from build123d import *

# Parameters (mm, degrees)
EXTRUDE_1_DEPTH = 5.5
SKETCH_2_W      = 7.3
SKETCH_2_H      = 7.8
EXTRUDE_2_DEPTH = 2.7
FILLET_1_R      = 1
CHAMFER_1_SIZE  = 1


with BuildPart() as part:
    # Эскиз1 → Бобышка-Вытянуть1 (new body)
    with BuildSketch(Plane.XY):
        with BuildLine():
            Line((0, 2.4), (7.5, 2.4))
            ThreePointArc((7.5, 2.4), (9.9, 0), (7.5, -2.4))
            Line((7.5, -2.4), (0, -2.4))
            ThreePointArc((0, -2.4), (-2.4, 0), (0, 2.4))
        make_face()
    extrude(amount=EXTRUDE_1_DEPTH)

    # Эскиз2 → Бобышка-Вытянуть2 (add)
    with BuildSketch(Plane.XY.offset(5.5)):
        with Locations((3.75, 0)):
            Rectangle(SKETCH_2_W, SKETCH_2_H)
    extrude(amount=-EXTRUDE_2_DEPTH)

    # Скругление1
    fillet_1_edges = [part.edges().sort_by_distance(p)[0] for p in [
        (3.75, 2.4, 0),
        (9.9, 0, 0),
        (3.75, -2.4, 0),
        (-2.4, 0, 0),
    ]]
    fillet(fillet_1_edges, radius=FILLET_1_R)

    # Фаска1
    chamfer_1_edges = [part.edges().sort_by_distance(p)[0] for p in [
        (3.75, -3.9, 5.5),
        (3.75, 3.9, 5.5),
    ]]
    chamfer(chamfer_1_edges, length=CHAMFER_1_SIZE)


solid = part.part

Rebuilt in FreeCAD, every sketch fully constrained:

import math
import FreeCAD as App
import Part
import Sketcher

V = App.Vector


def edges_at(feature, points):
    """Names of the edges that pass closest to the given points."""
    edges = feature.Shape.Edges
    near = lambda p: min(range(len(edges)), key=lambda i: edges[i].distToShape(Part.Vertex(*p))[0])
    return sorted({f"Edge{near(p) + 1}" for p in points})


def add_polygon(sketch, points):
    """Adds a closed chain of lines whose ends are joined by coincident constraints."""
    first, n = sketch.GeometryCount, len(points)
    for a, b in zip(points, points[1:] + points[:1]):
        sketch.addGeometry(Part.LineSegment(App.Vector(*a, 0), App.Vector(*b, 0)), False)
    for i in range(n):
        sketch.addConstraint(Sketcher.Constraint("Coincident", first + i, 2, first + (i + 1) % n, 1))

doc = App.newDocument("Part")
params = doc.addObject("Spreadsheet::Sheet", "Params")
for row, (alias, value) in enumerate([
    ("sketch1_radius", "2.4 mm"),
    ("sketch1_width", "7.5 mm"),
    ("pad1_length", "5.5 mm"),
    ("sketch2_width", "7.3 mm"),
    ("sketch2_height", "7.8 mm"),
    ("pad2_length", "2.7 mm"),
    ("fillet_radius", "1 mm"),
    ("chamfer_size", "1 mm"),
], start=1):
    params.set(f"A{row}", alias)
    params.set(f"B{row}", "=" + value)
    params.setAlias(f"B{row}", alias)

body = doc.addObject("PartDesign::Body", "Body")

# Sketch on XY plane
sketch1 = body.newObject("Sketcher::SketchObject", "Sketch")
sketch1.AttachmentSupport = (doc.getObject("XY_Plane"), [""])
sketch1.MapMode = "FlatFace"
sketch1.addGeometry([
    Part.LineSegment(V(7.5, 2.4, 0), V(0, 2.4, 0)),
    Part.ArcOfCircle(Part.Circle(V(0, 0, 0), V(0, 0, 1), 2.4), math.radians(90), math.radians(270)),
    Part.LineSegment(V(0, -2.4, 0), V(7.5, -2.4, 0)),
    Part.ArcOfCircle(Part.Circle(V(7.5, 0, 0), V(0, 0, 1), 2.4), math.radians(-90), math.radians(90)),
], False)
sketch1.addConstraint([
    Sketcher.Constraint("Tangent", 0, 2, 1, 1),
    Sketcher.Constraint("Tangent", 1, 2, 2, 1),
    Sketcher.Constraint("Tangent", 2, 2, 3, 1),
    Sketcher.Constraint("Tangent", 3, 2, 0, 1),
    Sketcher.Constraint("Horizontal", 0),
    Sketcher.Constraint("Horizontal", 2),
    Sketcher.Constraint("Coincident", 1, 3, -1, 1),
    Sketcher.Constraint("Radius", 1, 2.4),
    Sketcher.Constraint("DistanceX", 0, 2, 0, 1, 7.5),
])
sketch1.setExpression("Constraints[7]", "Params.sketch1_radius")
sketch1.setExpression("Constraints[8]", "Params.sketch1_width")
pad1 = body.newObject("PartDesign::Pad", "Pad")
pad1.Profile = sketch1
pad1.setExpression("Length", "Params.pad1_length")

# Sketch on XY plane
sketch2 = body.newObject("Sketcher::SketchObject", "Sketch001")
sketch2.AttachmentSupport = (doc.getObject("XY_Plane"), [""])
sketch2.MapMode = "FlatFace"
sketch2.AttachmentOffset = App.Placement(V(0, 0, 5.5), App.Rotation())
add_polygon(sketch2, [(0.1, 3.9), (0.1, -3.9), (7.4, -3.9), (7.4, 3.9)])  # lines 0-3
sketch2.addConstraint([
    Sketcher.Constraint("Vertical", 0),
    Sketcher.Constraint("Horizontal", 1),
    Sketcher.Constraint("Vertical", 2),
    Sketcher.Constraint("Horizontal", 3),
    Sketcher.Constraint("DistanceX", 1, 1, 1, 2, 7.3),
    Sketcher.Constraint("DistanceY", 0, 2, 0, 1, 7.8),
    Sketcher.Constraint("DistanceX", -1, 1, 0, 2, 0.1),
    Sketcher.Constraint("DistanceY", 0, 2, -1, 1, 3.9),
])
sketch2.setExpression("Constraints[8]", "Params.sketch2_width")
sketch2.setExpression("Constraints[9]", "Params.sketch2_height")
pad2 = body.newObject("PartDesign::Pad", "Pad001")
pad2.Profile = sketch2
pad2.setExpression("Length", "Params.pad2_length")
pad2.Reversed = True
doc.recompute()

fillet = body.newObject("PartDesign::Fillet", "Fillet")
fillet.Base = (pad2, edges_at(pad2, [
    (3.75, 2.4, 0),
    (9.9, 0, 0),
    (3.75, -2.4, 0),
    (-2.4, 0, 0),
]))
fillet.setExpression("Radius", "Params.fillet_radius")
doc.recompute()

chamfer = body.newObject("PartDesign::Chamfer", "Chamfer")
chamfer.Base = (fillet, edges_at(fillet, [(3.75, -3.9, 5.5), (3.75, 3.9, 5.5)]))
chamfer.setExpression("Size", "Params.chamfer_size")

doc.recompute()
